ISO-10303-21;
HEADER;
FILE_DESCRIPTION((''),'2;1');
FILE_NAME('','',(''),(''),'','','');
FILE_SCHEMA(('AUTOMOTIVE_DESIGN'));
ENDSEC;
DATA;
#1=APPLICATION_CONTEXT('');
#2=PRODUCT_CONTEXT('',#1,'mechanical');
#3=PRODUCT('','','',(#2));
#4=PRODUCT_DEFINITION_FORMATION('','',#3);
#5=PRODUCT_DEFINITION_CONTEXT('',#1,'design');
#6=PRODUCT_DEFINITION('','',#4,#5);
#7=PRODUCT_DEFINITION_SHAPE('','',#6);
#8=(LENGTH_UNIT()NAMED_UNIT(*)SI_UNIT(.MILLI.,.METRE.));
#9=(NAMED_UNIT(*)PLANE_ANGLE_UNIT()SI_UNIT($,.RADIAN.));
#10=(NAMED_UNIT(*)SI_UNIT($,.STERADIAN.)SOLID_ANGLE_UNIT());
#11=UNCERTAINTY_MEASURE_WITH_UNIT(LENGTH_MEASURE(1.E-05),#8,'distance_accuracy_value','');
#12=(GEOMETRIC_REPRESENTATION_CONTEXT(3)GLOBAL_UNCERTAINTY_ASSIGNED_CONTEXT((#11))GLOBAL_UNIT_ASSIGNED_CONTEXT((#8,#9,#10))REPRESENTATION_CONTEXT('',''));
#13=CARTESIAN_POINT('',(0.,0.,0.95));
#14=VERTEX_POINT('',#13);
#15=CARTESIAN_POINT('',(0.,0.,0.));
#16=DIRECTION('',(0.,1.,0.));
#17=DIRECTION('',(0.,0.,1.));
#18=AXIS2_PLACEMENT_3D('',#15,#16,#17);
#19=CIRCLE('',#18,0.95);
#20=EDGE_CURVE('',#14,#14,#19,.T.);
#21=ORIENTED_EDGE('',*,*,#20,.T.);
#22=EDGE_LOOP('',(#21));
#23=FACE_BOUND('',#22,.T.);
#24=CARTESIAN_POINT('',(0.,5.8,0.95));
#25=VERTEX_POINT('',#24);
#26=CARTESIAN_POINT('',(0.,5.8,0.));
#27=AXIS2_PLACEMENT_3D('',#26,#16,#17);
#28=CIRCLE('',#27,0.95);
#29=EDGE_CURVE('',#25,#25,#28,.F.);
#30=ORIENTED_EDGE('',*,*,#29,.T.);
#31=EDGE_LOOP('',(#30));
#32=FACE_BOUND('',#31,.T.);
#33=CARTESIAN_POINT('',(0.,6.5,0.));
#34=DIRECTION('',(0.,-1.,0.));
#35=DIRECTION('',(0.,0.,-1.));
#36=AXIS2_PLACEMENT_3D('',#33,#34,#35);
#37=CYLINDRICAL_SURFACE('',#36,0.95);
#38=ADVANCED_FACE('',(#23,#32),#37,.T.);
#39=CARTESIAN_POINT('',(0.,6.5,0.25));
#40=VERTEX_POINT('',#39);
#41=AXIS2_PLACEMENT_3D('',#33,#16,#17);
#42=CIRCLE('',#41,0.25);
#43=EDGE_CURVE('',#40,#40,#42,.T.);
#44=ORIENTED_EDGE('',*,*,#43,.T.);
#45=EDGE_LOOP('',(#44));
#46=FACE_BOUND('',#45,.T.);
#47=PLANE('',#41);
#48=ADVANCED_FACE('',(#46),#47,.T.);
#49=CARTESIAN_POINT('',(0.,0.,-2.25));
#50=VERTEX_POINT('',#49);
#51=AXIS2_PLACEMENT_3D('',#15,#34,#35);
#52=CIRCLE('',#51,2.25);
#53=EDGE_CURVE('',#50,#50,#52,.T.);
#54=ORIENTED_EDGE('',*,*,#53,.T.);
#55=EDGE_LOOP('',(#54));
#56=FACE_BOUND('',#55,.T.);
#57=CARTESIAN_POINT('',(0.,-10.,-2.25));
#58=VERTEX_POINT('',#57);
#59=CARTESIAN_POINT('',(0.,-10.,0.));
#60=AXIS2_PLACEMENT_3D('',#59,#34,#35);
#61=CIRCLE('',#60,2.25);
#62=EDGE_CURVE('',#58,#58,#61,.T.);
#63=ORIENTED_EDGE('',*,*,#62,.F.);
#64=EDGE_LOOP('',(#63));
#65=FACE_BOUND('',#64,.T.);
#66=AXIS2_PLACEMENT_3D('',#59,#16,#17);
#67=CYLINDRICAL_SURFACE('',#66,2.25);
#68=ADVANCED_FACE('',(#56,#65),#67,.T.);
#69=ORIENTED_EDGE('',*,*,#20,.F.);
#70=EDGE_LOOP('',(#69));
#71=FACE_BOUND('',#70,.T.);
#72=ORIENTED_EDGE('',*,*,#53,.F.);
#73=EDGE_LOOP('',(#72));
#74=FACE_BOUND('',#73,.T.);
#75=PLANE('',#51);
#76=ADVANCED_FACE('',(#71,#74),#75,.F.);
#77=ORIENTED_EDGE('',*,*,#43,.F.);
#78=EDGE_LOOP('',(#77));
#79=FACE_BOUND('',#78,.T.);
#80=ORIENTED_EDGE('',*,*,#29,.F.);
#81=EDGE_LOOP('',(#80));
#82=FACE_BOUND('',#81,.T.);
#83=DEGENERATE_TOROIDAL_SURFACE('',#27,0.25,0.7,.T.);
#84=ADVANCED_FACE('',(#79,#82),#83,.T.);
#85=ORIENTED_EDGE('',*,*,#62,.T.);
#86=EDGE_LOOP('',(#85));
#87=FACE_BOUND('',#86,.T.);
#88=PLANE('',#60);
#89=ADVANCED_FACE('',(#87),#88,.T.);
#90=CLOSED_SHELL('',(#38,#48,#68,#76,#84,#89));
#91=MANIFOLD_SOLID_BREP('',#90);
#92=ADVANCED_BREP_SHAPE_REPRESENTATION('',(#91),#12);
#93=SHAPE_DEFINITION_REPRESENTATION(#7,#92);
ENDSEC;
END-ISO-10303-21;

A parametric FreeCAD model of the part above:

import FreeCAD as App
import Part
import Sketcher


def edges_at(feature, points):
    """Names of the edges that pass closest to the given points."""
    edges = feature.Shape.Edges
    near = lambda p: min(range(len(edges)), key=lambda i: edges[i].distToShape(Part.Vertex(*p))[0])
    return sorted({f"Edge{near(p) + 1}" for p in points})

doc = App.newDocument("Part")
params = doc.addObject("Spreadsheet::Sheet", "Params")
for row, (alias, value) in enumerate([
    ("sketch1_diameter", "1.9 mm"),
    ("pad1_length", "6.5 mm"),
    ("sketch2_diameter", "4.5 mm"),
    ("pad2_length", "10 mm"),
    ("fillet_radius", "0.7 mm"),
], start=1):
    params.set(f"A{row}", alias)
    params.set(f"B{row}", "=" + value)
    params.setAlias(f"B{row}", alias)

body = doc.addObject("PartDesign::Body", "Body")

sketch1 = body.newObject("Sketcher::SketchObject", "Sketch")
sketch1.AttachmentSupport = (doc.getObject("XZ_Plane"), [""])
sketch1.MapMode = "FlatFace"
sketch1.addGeometry(Part.Circle(App.Vector(0, 0, 0), App.Vector(0, 0, 1), 0.95), False)
sketch1.addConstraint([
    Sketcher.Constraint("Coincident", 0, 3, -1, 1),
    Sketcher.Constraint("Diameter", 0, 1.9),
])
sketch1.setExpression("Constraints[1]", "Params.sketch1_diameter")
pad1 = body.newObject("PartDesign::Pad", "Pad")
pad1.Profile = sketch1
pad1.setExpression("Length", "Params.pad1_length")
pad1.Reversed = True

sketch2 = body.newObject("Sketcher::SketchObject", "Sketch001")
sketch2.AttachmentSupport = (doc.getObject("XZ_Plane"), [""])
sketch2.MapMode = "FlatFace"
sketch2.addGeometry(Part.Circle(App.Vector(0, 0, 0), App.Vector(0, 0, 1), 2.25), False)
sketch2.addConstraint([
    Sketcher.Constraint("Coincident", 0, 3, -1, 1),
    Sketcher.Constraint("Diameter", 0, 4.5),
])
sketch2.setExpression("Constraints[1]", "Params.sketch2_diameter")
pad2 = body.newObject("PartDesign::Pad", "Pad001")
pad2.Profile = sketch2
pad2.setExpression("Length", "Params.pad2_length")
doc.recompute()

fillet = body.newObject("PartDesign::Fillet", "Fillet")
fillet.Base = (pad2, edges_at(pad2, [(-0.95, 6.5, 0)]))
fillet.setExpression("Radius", "Params.fillet_radius")

doc.recompute()
